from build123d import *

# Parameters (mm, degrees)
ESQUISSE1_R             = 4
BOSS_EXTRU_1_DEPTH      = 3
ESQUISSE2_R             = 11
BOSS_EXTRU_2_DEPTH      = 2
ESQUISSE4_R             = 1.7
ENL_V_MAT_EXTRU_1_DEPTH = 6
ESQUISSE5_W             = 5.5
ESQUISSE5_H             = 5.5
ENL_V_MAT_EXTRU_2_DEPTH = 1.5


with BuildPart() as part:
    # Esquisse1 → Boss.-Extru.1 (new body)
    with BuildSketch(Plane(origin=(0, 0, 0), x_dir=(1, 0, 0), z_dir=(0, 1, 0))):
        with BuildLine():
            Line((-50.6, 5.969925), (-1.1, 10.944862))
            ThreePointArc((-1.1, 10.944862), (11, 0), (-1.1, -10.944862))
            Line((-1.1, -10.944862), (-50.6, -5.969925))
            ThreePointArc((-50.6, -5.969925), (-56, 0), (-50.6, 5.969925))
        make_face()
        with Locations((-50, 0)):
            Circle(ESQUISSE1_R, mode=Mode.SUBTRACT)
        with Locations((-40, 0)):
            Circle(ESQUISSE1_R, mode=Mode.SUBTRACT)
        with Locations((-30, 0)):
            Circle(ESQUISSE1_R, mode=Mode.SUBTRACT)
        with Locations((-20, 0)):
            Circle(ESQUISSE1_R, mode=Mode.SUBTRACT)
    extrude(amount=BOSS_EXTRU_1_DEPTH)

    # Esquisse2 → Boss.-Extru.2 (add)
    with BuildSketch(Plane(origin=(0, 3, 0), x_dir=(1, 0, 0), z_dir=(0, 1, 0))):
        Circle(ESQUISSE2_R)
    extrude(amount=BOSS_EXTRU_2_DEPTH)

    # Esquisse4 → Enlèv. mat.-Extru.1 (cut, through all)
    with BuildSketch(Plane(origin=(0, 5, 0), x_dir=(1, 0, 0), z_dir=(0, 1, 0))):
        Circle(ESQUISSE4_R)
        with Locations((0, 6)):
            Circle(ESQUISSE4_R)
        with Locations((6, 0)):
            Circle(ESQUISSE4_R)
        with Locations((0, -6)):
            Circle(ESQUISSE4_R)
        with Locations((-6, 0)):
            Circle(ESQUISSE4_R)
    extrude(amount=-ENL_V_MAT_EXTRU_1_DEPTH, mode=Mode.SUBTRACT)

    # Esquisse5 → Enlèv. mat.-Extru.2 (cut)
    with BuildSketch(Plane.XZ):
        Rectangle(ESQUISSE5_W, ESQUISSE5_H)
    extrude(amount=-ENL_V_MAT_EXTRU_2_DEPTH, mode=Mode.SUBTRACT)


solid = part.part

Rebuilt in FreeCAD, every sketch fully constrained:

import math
import FreeCAD as App
import Part
import Sketcher
from FreeCAD import Vector


def add_polygon(sketch, points):
    """Adds a closed chain of lines whose ends are joined by coincident constraints."""
    first, n = sketch.GeometryCount, len(points)
    for a, b in zip(points, points[1:] + points[:1]):
        sketch.addGeometry(Part.LineSegment(App.Vector(*a, 0), App.Vector(*b, 0)), False)
    for i in range(n):
        sketch.addConstraint(Sketcher.Constraint("Coincident", first + i, 2, first + (i + 1) % n, 1))

doc = App.newDocument("Part")
body = doc.addObject("PartDesign::Body", "Body")

sketch1 = doc.addObject("Sketcher::SketchObject", "Sketch")
body.addObject(sketch1)
sketch1.AttachmentSupport = (doc.XZ_Plane, [""])
sketch1.MapMode = "FlatFace"
sketch1.addGeometry([
    Part.LineSegment(Vector(-1.1, -10.944862, 0), Vector(-50.6, -5.969925, 0)),
    Part.ArcOfCircle(Part.Circle(Vector(-50, 0, 0), Vector(0, 0, 1), 6), math.radians(95.739174), math.radians(264.260826)),
    Part.LineSegment(Vector(-50.6, 5.969925, 0), Vector(-1.1, 10.944862, 0)),
    Part.ArcOfCircle(Part.Circle(Vector(0, 0, 0), Vector(0, 0, 1), 11), math.radians(-95.739169), math.radians(95.739169)),
    Part.Circle(Vector(-20, 0, 0), Vector(0, 0, 1), 4),
    Part.Circle(Vector(-30, 0, 0), Vector(0, 0, 1), 4),
    Part.Circle(Vector(-40, 0, 0), Vector(0, 0, 1), 4),
    Part.Circle(Vector(-50, 0, 0), Vector(0, 0, 1), 4),
], False)
sketch1.addConstraint([
    Sketcher.Constraint("Tangent", 0, 2, 1, 2),
    Sketcher.Constraint("Tangent", 1, 1, 2, 1),
    Sketcher.Constraint("Tangent", 2, 2, 3, 2),
    Sketcher.Constraint("Tangent", 3, 1, 0, 1),
    Sketcher.Constraint("Coincident", 3, 3, -1, 1),
    Sketcher.Constraint("Coincident", 7, 3, 1, 3),
    Sketcher.Constraint("Equal", 4, 5),
    Sketcher.Constraint("Equal", 5, 6),
    Sketcher.Constraint("Equal", 6, 7),
    Sketcher.Constraint("PointOnObject", 1, 3, -1),
    Sketcher.Constraint("PointOnObject", 4, 3, -1),
    Sketcher.Constraint("PointOnObject", 5, 3, -1),
    Sketcher.Constraint("PointOnObject", 6, 3, -1),
    Sketcher.Constraint("Diameter", 4, 8.0),
    Sketcher.Constraint("Radius", 1, 6.0),
    Sketcher.Constraint("Radius", 3, 11.0),
    Sketcher.Constraint("DistanceX", 1, 3, -1, 1, 50.0),
    Sketcher.Constraint("DistanceX", 4, 3, -1, 1, 20.0),
    Sketcher.Constraint("DistanceX", 5, 3, -1, 1, 30.0),
    Sketcher.Constraint("DistanceX", 6, 3, -1, 1, 40.0),
])
pad1 = doc.addObject("PartDesign::Pad", "Pad")
body.addObject(pad1)
pad1.Profile = sketch1
pad1.Length = 3
pad1.Reversed = True

sketch2 = doc.addObject("Sketcher::SketchObject", "Sketch001")
body.addObject(sketch2)
sketch2.AttachmentSupport = (doc.XZ_Plane, [""])
sketch2.MapMode = "FlatFace"
sketch2.AttachmentOffset = App.Placement(Vector(0, 0, -3), App.Rotation())
sketch2.addGeometry(Part.Circle(Vector(0, 0, 0), Vector(0, 0, 1), 11), False)
sketch2.addConstraint([
    Sketcher.Constraint("Coincident", 0, 3, -1, 1),
    Sketcher.Constraint("Diameter", 0, 22.0),
])
pad2 = doc.addObject("PartDesign::Pad", "Pad001")
body.addObject(pad2)
pad2.Profile = sketch2
pad2.Length = 2
pad2.Reversed = True

sketch3 = doc.addObject("Sketcher::SketchObject", "Sketch002")
body.addObject(sketch3)
sketch3.AttachmentSupport = (doc.XZ_Plane, [""])
sketch3.MapMode = "FlatFace"
sketch3.AttachmentOffset = App.Placement(Vector(0, 0, -5), App.Rotation())
sketch3.addGeometry([
    Part.Circle(Vector(0, 0, 0), Vector(0, 0, 1), 1.7),
    Part.Circle(Vector(0, -6, 0), Vector(0, 0, 1), 1.7),
    Part.Circle(Vector(6, 0, 0), Vector(0, 0, 1), 1.7),
    Part.Circle(Vector(0, 6, 0), Vector(0, 0, 1), 1.7),
    Part.Circle(Vector(-6, 0, 0), Vector(0, 0, 1), 1.7),
], False)
sketch3.addConstraint([
    Sketcher.Constraint("Coincident", 0, 3, -1, 1),
    Sketcher.Constraint("Equal", 0, 1),
    Sketcher.Constraint("Equal", 1, 2),
    Sketcher.Constraint("Equal", 2, 3),
    Sketcher.Constraint("Equal", 3, 4),
    Sketcher.Constraint("Symmetric", 1, 3, 3, 3, -1, 1),
    Sketcher.Constraint("Symmetric", 2, 3, 4, 3, -1, 1),
    Sketcher.Constraint("PointOnObject", 1, 3, -2),
    Sketcher.Constraint("PointOnObject", 2, 3, -1),
    Sketcher.Constraint("Diameter", 0, 3.4),
    Sketcher.Constraint("DistanceY", 1, 3, -1, 1, 6.0),
    Sketcher.Constraint("DistanceX", -1, 1, 2, 3, 6.0),
])
pocket1 = doc.addObject("PartDesign::Pocket", "Pocket")
body.addObject(pocket1)
pocket1.Profile = sketch3
pocket1.Type = "ThroughAll"
pocket1.Reversed = True

sketch4 = doc.addObject("Sketcher::SketchObject", "Sketch003")
body.addObject(sketch4)
sketch4.AttachmentSupport = (doc.XZ_Plane, [""])
sketch4.MapMode = "FlatFace"
add_polygon(sketch4, [(-2.75, 2.75), (-2.75, -2.75), (2.75, -2.75), (2.75, 2.75)])
sketch4.addConstraint([
    Sketcher.Constraint("Vertical", 0),
    Sketcher.Constraint("Horizontal", 1),
    Sketcher.Constraint("Vertical", 2),
    Sketcher.Constraint("Horizontal", 3),
    Sketcher.Constraint("Symmetric", 0, 2, 2, 2, -1, 1),
    Sketcher.Constraint("Equal", 3, 0),
    Sketcher.Constraint("DistanceX", 1, 1, 1, 2, 5.5),
])
pocket2 = doc.addObject("PartDesign::Pocket", "Pocket001")
body.addObject(pocket2)
pocket2.Profile = sketch4
pocket2.Length = 1.5

doc.recompute()
